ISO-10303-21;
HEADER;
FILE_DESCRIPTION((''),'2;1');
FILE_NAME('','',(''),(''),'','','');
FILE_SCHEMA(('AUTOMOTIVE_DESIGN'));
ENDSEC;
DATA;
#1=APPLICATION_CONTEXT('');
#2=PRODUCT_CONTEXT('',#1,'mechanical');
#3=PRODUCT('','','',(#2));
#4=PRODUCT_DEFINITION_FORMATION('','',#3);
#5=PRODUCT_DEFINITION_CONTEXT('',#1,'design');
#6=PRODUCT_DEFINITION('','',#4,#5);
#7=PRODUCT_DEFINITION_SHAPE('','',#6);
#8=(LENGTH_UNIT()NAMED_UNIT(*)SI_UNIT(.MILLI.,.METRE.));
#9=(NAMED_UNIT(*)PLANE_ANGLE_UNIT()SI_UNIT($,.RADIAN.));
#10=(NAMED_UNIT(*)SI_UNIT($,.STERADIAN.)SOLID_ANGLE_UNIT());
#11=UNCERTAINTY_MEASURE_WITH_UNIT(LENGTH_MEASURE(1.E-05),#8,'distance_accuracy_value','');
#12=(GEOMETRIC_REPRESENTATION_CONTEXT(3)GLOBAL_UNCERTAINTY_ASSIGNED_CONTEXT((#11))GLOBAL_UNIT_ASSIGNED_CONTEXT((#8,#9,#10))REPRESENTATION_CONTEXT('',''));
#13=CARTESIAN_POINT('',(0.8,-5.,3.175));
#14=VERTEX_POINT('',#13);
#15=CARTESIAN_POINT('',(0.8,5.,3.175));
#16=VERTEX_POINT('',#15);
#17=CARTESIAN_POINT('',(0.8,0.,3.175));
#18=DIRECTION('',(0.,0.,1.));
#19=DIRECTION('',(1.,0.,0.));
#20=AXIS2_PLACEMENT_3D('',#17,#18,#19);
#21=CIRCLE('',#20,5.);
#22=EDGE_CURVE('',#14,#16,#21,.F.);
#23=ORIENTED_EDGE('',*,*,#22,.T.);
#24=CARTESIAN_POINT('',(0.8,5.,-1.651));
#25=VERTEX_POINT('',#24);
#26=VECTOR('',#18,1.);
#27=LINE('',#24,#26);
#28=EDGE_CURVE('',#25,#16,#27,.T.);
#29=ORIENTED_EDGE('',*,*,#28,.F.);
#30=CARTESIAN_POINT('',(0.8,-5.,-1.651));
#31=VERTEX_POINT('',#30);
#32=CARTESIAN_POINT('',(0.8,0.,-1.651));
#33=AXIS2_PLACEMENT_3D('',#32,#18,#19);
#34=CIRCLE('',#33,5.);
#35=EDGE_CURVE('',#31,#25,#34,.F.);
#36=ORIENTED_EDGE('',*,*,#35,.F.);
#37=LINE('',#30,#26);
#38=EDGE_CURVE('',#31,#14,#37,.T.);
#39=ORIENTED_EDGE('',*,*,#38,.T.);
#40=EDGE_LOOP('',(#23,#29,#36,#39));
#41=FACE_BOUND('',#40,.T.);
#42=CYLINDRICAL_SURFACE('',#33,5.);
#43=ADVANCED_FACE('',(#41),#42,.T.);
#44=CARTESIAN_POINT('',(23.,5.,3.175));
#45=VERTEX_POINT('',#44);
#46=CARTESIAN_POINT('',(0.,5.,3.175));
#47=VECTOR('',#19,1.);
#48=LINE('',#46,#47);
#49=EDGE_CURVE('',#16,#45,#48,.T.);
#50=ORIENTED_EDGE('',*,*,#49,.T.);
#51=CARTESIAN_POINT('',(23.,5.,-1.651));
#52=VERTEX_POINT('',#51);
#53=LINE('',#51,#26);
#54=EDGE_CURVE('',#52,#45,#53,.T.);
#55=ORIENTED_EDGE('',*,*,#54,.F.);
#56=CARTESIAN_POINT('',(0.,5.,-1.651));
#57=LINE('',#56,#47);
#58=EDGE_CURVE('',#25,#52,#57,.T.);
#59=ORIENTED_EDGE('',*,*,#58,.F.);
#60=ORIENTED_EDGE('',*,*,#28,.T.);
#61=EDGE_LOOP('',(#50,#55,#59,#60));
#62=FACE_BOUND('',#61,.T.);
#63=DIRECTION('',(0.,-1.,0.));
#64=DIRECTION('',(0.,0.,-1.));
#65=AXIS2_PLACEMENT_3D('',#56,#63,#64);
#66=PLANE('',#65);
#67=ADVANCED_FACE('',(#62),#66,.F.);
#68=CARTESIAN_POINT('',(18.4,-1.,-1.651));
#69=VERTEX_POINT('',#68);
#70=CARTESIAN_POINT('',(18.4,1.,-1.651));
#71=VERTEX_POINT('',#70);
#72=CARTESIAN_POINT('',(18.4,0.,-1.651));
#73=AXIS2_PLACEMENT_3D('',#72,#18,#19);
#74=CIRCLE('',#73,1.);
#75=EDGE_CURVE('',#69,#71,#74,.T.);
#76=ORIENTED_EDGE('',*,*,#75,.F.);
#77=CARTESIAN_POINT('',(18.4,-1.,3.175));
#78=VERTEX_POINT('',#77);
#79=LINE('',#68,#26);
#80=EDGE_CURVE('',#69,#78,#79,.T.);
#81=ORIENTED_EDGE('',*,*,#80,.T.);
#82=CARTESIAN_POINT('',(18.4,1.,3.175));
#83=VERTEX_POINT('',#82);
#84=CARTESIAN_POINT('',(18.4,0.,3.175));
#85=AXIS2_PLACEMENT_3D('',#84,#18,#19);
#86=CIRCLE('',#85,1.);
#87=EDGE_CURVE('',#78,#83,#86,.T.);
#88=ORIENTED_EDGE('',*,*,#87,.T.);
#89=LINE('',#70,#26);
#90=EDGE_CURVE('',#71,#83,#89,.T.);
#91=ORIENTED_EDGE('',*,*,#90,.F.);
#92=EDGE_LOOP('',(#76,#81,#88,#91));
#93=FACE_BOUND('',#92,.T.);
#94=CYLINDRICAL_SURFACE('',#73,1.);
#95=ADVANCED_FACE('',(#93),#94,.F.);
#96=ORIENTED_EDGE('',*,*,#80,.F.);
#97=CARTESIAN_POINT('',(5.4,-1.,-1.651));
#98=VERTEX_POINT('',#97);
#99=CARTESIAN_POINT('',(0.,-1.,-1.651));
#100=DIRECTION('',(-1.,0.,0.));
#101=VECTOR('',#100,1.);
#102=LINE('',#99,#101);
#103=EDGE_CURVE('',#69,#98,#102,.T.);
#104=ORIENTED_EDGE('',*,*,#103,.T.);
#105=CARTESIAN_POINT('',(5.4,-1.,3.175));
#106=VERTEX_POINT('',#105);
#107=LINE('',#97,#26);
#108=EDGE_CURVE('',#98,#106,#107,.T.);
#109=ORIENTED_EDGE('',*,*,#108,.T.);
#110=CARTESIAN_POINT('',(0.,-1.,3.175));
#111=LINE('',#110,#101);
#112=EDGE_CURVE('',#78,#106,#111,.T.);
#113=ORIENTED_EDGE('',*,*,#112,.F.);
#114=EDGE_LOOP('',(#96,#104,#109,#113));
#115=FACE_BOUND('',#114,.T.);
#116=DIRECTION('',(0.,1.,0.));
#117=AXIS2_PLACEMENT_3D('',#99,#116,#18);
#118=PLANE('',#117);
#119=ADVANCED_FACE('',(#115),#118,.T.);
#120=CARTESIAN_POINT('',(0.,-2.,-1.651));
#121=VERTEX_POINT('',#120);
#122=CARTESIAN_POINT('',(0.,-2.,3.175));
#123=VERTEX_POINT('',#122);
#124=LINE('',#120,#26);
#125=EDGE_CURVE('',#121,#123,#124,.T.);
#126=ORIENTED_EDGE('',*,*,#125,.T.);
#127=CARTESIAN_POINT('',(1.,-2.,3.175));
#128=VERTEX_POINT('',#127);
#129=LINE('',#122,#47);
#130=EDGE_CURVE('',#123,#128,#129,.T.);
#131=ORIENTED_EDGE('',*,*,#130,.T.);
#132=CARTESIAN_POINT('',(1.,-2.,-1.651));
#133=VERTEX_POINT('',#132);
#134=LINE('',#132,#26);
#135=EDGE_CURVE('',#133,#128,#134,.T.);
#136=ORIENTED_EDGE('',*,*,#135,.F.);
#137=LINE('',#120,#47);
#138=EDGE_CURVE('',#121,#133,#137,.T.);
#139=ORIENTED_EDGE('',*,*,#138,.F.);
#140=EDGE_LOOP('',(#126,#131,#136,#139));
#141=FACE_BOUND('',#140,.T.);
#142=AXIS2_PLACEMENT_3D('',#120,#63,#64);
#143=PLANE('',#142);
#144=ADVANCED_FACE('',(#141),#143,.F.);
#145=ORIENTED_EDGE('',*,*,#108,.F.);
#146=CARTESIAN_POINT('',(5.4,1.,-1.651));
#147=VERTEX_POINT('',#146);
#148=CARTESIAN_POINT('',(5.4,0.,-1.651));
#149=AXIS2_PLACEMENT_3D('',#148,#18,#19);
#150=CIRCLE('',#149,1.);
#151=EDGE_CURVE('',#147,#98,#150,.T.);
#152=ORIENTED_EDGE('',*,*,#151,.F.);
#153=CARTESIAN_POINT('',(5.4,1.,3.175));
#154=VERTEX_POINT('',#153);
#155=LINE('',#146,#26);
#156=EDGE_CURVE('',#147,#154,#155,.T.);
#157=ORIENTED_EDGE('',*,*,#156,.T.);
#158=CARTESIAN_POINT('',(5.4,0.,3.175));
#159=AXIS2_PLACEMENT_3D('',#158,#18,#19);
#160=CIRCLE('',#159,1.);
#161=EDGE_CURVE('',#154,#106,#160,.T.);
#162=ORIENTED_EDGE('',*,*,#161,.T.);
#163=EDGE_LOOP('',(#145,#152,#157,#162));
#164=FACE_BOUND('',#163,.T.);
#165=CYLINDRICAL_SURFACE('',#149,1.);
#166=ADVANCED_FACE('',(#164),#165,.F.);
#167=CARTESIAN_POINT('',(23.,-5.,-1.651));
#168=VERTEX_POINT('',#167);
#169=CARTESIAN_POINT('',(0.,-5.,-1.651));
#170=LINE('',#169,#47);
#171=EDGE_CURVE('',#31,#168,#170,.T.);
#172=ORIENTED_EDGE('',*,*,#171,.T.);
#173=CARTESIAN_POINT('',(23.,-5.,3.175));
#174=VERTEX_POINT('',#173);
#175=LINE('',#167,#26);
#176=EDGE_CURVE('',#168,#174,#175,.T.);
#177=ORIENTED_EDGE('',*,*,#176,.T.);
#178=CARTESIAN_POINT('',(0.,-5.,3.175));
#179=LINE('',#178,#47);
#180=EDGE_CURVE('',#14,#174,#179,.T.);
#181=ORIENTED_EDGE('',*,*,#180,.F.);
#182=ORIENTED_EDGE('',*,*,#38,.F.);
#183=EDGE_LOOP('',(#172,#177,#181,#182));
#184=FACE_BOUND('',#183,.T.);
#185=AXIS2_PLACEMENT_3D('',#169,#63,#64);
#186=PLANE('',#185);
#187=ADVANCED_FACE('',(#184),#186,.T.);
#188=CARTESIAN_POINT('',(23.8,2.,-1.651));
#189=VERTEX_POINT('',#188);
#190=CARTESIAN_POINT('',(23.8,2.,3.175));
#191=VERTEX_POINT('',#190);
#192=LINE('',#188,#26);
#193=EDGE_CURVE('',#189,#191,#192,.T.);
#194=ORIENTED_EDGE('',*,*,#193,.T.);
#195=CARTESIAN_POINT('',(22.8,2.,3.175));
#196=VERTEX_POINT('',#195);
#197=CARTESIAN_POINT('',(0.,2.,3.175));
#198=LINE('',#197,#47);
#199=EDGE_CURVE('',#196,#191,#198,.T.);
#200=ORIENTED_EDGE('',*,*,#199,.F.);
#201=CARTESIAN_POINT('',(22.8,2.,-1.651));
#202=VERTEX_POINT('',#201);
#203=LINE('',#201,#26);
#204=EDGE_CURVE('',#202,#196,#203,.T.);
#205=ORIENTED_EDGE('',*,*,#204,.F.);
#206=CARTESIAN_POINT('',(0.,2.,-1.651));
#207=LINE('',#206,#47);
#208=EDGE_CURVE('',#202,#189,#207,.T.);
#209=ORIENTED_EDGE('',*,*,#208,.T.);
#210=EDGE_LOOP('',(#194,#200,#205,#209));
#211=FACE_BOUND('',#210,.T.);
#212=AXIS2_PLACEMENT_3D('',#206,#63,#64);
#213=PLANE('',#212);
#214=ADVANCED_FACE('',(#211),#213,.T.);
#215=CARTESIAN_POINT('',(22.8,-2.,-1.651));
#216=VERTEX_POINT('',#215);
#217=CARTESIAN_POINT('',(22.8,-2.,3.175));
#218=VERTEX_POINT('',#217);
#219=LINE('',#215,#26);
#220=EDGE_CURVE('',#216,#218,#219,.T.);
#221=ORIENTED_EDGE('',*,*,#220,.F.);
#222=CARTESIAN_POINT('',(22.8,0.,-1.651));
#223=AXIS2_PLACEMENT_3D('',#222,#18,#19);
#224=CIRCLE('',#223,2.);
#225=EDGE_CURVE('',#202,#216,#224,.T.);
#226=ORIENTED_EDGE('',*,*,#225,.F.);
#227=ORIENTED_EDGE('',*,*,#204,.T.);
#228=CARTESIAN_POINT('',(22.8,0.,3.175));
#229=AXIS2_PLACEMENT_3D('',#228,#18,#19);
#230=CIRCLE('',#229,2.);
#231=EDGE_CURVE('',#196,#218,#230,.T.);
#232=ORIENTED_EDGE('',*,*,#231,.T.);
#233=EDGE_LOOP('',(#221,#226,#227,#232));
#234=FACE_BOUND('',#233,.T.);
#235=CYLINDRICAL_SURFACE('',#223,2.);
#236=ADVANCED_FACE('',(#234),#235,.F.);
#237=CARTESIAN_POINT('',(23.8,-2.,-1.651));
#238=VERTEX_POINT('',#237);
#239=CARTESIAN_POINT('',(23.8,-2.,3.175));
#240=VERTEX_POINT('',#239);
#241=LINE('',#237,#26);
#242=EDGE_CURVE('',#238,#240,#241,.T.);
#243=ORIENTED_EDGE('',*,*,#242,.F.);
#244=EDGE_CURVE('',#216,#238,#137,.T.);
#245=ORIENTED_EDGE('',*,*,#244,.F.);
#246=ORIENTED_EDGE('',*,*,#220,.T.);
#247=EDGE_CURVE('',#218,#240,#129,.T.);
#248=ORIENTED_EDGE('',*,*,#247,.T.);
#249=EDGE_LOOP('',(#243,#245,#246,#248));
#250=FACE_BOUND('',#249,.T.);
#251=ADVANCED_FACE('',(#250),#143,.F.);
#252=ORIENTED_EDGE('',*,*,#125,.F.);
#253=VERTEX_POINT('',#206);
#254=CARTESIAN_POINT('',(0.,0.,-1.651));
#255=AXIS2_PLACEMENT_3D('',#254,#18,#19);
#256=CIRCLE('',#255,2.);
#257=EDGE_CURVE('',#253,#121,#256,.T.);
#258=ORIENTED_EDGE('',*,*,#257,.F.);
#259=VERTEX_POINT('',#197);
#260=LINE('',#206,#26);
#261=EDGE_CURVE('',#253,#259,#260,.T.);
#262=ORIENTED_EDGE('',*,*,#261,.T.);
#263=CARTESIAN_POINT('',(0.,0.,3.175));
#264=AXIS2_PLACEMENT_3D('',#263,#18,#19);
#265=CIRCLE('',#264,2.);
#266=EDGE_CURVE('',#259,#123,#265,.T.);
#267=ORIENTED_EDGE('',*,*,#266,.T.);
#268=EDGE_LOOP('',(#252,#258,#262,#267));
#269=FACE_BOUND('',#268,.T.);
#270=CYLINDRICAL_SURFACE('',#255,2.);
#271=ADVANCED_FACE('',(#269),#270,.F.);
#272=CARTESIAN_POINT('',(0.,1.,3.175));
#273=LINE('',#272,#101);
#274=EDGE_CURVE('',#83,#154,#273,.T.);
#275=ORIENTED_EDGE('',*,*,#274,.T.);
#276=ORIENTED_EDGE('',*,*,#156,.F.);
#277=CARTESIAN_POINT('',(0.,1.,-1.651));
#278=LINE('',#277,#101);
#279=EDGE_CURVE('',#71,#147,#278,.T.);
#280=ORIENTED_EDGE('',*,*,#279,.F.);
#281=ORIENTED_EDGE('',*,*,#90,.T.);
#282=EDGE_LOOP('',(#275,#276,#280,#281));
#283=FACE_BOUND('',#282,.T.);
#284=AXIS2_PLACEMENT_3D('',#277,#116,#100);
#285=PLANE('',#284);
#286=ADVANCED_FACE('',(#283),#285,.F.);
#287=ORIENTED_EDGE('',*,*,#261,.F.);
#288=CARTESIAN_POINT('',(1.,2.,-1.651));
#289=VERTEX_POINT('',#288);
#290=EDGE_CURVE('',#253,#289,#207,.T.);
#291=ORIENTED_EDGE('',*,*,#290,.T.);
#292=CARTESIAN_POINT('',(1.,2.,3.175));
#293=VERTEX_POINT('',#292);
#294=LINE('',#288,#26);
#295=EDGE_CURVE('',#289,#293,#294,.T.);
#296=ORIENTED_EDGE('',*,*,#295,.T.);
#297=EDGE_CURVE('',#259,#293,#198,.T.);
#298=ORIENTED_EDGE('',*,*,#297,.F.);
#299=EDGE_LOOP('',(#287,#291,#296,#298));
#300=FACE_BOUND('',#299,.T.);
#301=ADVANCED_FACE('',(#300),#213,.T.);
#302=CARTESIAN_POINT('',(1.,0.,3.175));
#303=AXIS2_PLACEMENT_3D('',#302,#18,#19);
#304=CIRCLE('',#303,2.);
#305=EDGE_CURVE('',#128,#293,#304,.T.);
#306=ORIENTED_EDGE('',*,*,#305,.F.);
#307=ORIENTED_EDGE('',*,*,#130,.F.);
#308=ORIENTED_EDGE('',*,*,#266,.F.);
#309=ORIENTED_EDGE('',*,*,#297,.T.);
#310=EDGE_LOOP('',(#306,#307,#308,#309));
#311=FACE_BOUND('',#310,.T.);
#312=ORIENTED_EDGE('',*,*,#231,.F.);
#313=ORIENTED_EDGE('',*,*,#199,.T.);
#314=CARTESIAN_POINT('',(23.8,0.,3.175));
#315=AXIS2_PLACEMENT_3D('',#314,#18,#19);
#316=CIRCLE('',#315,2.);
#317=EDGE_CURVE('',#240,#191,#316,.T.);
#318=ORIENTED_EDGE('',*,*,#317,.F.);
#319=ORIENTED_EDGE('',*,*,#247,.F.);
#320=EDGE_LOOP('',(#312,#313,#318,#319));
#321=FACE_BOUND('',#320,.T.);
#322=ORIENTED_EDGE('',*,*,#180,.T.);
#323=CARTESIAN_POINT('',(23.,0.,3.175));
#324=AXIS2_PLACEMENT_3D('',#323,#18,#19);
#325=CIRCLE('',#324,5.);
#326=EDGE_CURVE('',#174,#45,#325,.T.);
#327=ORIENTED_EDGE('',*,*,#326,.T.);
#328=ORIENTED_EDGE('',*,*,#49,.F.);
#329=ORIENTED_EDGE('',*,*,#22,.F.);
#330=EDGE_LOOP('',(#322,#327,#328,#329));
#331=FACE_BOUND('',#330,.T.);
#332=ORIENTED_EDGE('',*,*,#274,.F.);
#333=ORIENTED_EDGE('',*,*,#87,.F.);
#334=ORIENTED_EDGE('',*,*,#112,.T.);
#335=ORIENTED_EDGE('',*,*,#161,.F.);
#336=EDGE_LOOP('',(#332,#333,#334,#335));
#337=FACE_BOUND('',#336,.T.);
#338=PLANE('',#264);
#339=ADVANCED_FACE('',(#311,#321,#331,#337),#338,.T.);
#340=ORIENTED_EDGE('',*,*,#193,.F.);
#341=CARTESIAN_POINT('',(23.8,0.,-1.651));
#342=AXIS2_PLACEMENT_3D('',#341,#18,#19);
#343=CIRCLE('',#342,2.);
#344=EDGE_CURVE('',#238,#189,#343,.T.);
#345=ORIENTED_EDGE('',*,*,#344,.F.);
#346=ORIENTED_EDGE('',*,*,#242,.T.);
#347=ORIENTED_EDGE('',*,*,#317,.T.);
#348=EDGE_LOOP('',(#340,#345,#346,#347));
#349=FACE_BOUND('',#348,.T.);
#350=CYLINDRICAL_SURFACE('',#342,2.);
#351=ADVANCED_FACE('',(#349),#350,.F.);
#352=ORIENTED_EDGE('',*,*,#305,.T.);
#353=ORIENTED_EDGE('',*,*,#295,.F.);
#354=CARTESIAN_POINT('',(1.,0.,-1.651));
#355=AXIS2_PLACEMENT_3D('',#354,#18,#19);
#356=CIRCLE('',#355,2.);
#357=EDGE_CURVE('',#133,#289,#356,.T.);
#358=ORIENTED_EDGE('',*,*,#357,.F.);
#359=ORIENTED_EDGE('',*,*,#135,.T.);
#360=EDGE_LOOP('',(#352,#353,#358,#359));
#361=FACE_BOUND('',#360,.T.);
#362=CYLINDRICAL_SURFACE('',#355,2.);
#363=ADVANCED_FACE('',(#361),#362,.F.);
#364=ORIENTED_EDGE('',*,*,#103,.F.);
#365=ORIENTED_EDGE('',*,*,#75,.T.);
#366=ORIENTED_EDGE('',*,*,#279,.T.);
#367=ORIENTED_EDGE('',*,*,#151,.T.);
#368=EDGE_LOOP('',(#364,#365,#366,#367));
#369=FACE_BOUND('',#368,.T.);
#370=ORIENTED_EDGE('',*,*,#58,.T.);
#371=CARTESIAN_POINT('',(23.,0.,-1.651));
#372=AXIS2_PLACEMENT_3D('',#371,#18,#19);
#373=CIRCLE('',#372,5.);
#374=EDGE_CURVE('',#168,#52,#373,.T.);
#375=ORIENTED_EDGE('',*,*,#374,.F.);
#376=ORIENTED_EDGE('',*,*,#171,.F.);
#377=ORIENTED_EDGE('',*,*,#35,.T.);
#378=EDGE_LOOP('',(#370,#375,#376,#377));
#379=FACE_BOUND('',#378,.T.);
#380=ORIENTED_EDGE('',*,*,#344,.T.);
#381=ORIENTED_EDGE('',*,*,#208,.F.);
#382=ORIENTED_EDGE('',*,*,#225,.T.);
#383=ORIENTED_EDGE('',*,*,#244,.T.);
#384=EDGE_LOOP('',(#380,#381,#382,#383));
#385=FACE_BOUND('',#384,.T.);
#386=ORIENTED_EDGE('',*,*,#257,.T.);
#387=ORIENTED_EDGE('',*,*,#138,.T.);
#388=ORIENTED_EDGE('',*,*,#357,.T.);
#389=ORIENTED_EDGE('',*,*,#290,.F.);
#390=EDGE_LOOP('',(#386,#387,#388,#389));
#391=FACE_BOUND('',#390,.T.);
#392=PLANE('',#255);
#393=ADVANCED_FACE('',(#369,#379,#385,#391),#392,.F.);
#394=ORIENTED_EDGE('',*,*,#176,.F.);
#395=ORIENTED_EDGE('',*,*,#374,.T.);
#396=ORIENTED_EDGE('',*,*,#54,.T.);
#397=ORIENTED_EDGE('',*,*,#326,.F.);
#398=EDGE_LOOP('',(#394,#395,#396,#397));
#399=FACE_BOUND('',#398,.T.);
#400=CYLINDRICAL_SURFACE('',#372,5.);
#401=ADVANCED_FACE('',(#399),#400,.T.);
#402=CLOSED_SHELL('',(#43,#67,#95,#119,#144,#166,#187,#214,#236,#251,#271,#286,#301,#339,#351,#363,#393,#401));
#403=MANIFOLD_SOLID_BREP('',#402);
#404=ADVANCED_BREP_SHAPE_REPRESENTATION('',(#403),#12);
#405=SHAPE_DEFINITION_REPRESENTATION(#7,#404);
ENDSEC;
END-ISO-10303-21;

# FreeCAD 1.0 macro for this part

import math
import FreeCAD as App
import Part
import Sketcher
from FreeCAD import Vector

doc = App.newDocument("Part")
body = doc.addObject("PartDesign::Body", "Body")

# Sketch on XY plane
sketch1 = body.newObject("Sketcher::SketchObject", "Sketch")
sketch1.AttachmentSupport = (doc.getObject("XY_Plane"), [""])
sketch1.MapMode = "FlatFace"
sketch1.addGeometry([
    Part.LineSegment(Vector(23, 5, 0), Vector(0.8, 5, 0)),  # 0
    Part.ArcOfCircle(Part.Circle(Vector(0.8, 0, 0), Vector(0, 0, 1), 5), math.radians(90), math.radians(270)),  # 1
    Part.LineSegment(Vector(0.8, -5, 0), Vector(23, -5, 0)),  # 2
    Part.ArcOfCircle(Part.Circle(Vector(23, 0, 0), Vector(0, 0, 1), 5), math.radians(-90), math.radians(90)),  # 3
    Part.LineSegment(Vector(22.8, 2, 0), Vector(23.8, 2, 0)),  # 4
    Part.ArcOfCircle(Part.Circle(Vector(23.8, 0, 0), Vector(0, 0, 1), 2), math.radians(-90), math.radians(90)),  # 5
    Part.LineSegment(Vector(23.8, -2, 0), Vector(22.8, -2, 0)),  # 6
    Part.ArcOfCircle(Part.Circle(Vector(22.8, 0, 0), Vector(0, 0, 1), 2), math.radians(90), math.radians(270)),  # 7
    Part.LineSegment(Vector(18.4, -1, 0), Vector(5.4, -1, 0)),  # 8
    Part.ArcOfCircle(Part.Circle(Vector(5.4, 0, 0), Vector(0, 0, 1), 1), math.radians(90), math.radians(270)),  # 9
    Part.LineSegment(Vector(5.4, 1, 0), Vector(18.4, 1, 0)),  # 10
    Part.ArcOfCircle(Part.Circle(Vector(18.4, 0, 0), Vector(0, 0, 1), 1), math.radians(-90), math.radians(90)),  # 11
    Part.LineSegment(Vector(0, 2, 0), Vector(1, 2, 0)),  # 12
    Part.ArcOfCircle(Part.Circle(Vector(1, 0, 0), Vector(0, 0, 1), 2), math.radians(-90), math.radians(90)),  # 13
    Part.LineSegment(Vector(1, -2, 0), Vector(0, -2, 0)),  # 14
    Part.ArcOfCircle(Part.Circle(Vector(0, 0, 0), Vector(0, 0, 1), 2), math.radians(90), math.radians(270)),  # 15
], False)
sketch1.addConstraint([
    Sketcher.Constraint("Tangent", 0, 2, 1, 1),
    Sketcher.Constraint("Tangent", 1, 2, 2, 1),
    Sketcher.Constraint("Tangent", 2, 2, 3, 1),
    Sketcher.Constraint("Tangent", 3, 2, 0, 1),
    Sketcher.Constraint("Tangent", 4, 2, 5, 2),
    Sketcher.Constraint("Tangent", 5, 1, 6, 1),
    Sketcher.Constraint("Tangent", 6, 2, 7, 2),
    Sketcher.Constraint("Tangent", 7, 1, 4, 1),
    Sketcher.Constraint("Tangent", 8, 2, 9, 2),
    Sketcher.Constraint("Tangent", 9, 1, 10, 1),
    Sketcher.Constraint("Tangent", 10, 2, 11, 2),
    Sketcher.Constraint("Tangent", 11, 1, 8, 1),
    Sketcher.Constraint("Tangent", 12, 2, 13, 2),
    Sketcher.Constraint("Tangent", 13, 1, 14, 1),
    Sketcher.Constraint("Tangent", 14, 2, 15, 2),
    Sketcher.Constraint("Tangent", 15, 1, 12, 1),
    Sketcher.Constraint("Horizontal", 0),
    Sketcher.Constraint("Horizontal", 2),
    Sketcher.Constraint("Horizontal", 4),
    Sketcher.Constraint("Horizontal", 6),
    Sketcher.Constraint("Horizontal", 8),
    Sketcher.Constraint("Horizontal", 10),
    Sketcher.Constraint("Horizontal", 12),
    Sketcher.Constraint("Horizontal", 14),
    Sketcher.Constraint("Coincident", 15, 3, -1, 1),
    Sketcher.Constraint("Equal", 7, 13),
    Sketcher.Constraint("PointOnObject", 1, 3, -1),
    Sketcher.Constraint("PointOnObject", 5, 3, -1),
    Sketcher.Constraint("PointOnObject", 9, 3, -1),
    Sketcher.Constraint("Equal", 6, 12),
    Sketcher.Constraint("Radius", 1, 5.0),
    Sketcher.Constraint("Radius", 5, 2.0),
    Sketcher.Constraint("Radius", 9, 1.0),
    Sketcher.Constraint("DistanceX", 4, 1, 4, 2, 1.0),
    Sketcher.Constraint("DistanceX", 8, 2, 8, 1, 13.0),
    Sketcher.Constraint("DistanceX", 0, 2, 0, 1, 22.2),
    Sketcher.Constraint("DistanceX", -1, 1, 3, 3, 23.0),
    Sketcher.Constraint("DistanceX", 1, 3, 5, 3, 23.0),
    Sketcher.Constraint("DistanceX", -1, 1, 9, 3, 5.4),
])
pad1 = body.newObject("PartDesign::Pad", "Pad")
pad1.Profile = sketch1
pad1.Type = "TwoLengths"
pad1.Length = 3.175
pad1.Length2 = 1.651

doc.recompute()
